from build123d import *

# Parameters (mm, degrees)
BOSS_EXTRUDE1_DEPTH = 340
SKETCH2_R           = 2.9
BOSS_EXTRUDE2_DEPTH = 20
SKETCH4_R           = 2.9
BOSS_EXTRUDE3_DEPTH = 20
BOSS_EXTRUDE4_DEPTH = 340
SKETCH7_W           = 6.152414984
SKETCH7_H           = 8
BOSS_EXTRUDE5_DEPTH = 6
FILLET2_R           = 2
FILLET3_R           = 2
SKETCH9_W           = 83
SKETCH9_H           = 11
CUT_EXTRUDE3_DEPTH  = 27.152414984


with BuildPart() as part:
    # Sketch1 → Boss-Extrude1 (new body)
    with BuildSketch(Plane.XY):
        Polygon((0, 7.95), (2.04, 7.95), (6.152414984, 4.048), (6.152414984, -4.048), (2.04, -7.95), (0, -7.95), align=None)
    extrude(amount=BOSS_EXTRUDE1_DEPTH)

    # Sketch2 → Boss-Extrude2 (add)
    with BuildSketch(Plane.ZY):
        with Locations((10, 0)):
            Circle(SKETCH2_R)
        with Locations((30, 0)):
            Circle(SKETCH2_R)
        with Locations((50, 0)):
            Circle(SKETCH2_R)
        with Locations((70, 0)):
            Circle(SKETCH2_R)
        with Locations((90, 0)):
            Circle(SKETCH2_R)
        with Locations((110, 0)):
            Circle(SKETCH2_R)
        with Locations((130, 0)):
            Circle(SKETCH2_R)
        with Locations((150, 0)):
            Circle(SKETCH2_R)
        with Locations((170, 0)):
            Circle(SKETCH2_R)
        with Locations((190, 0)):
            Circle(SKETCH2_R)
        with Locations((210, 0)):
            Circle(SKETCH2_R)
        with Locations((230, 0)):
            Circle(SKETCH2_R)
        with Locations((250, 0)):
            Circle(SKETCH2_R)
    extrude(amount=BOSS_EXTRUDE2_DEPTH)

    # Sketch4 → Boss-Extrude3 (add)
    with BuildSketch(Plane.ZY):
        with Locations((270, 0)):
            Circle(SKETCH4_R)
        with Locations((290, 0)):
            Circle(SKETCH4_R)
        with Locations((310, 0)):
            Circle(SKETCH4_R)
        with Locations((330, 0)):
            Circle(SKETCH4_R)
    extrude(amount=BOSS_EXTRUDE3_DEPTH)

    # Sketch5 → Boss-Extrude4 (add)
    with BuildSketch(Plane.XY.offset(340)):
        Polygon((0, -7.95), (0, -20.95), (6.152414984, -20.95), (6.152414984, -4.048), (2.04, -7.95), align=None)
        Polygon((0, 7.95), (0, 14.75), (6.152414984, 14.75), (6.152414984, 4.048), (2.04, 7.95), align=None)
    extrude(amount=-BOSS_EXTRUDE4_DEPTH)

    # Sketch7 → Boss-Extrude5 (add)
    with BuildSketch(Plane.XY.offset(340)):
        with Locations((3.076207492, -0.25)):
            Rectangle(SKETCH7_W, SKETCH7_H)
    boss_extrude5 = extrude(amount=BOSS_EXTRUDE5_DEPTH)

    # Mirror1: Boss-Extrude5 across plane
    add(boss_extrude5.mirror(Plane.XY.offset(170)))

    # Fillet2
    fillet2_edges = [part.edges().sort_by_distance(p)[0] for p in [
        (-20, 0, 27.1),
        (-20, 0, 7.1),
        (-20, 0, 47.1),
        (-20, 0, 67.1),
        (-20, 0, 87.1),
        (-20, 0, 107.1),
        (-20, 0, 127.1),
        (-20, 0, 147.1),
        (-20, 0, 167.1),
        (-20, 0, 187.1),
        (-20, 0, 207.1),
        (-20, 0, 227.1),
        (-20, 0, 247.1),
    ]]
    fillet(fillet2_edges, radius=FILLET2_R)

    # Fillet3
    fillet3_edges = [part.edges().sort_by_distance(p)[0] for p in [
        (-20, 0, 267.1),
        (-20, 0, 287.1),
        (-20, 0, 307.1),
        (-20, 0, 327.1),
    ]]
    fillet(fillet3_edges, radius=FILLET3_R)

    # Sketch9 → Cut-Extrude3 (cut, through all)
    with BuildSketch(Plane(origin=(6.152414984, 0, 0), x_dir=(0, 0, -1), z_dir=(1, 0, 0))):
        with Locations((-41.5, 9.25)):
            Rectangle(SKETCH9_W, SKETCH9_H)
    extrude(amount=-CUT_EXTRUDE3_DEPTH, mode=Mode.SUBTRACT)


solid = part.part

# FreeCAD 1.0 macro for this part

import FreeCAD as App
import Part
import Sketcher
from FreeCAD import Vector


def edges_at(feature, points):
    """Names of the edges that pass closest to the given points."""
    edges = feature.Shape.Edges
    near = lambda p: min(range(len(edges)), key=lambda i: edges[i].distToShape(Part.Vertex(*p))[0])
    return sorted({f"Edge{near(p) + 1}" for p in points})

doc = App.newDocument("Part")
params = doc.addObject("Spreadsheet::Sheet", "Params")
for row, (alias, value) in enumerate([
    ("sketch1_height", "15.9 mm"),
    ("sketch1_width", "2.04 mm"),
    ("pad1_length", "340 mm"),
    ("sketch2_diameter", "5.8 mm"),
    ("pad2_length", "20 mm"),
    ("sketch3_diameter", "5.8 mm"),
    ("pad3_length", "20 mm"),
    ("sketch4_height", "13 mm"),
    ("sketch4_height2", "6.8 mm"),
    ("sketch4_width", "2.04 mm"),
    ("pad4_length", "340 mm"),
    ("sketch5_height", "8 mm"),
    ("pad5_length", "6 mm"),
    ("fillet_radius", "2 mm"),
    ("fillet2_radius", "2 mm"),
    ("sketch6_width", "11 mm"),
    ("sketch6_height", "83 mm"),
], start=1):
    params.set(f"A{row}", alias)
    params.set(f"B{row}", "=" + value)
    params.setAlias(f"B{row}", alias)

body = doc.addObject("PartDesign::Body", "Body")

# Sketch on XY plane
sketch1 = doc.addObject("Sketcher::SketchObject", "Sketch")
body.addObject(sketch1)
sketch1.AttachmentSupport = (doc.XY_Plane, [""])
sketch1.MapMode = "FlatFace"
sketch1.addGeometry(Part.LineSegment(Vector(2.04, 7.95, 0), Vector(0, 7.95, 0)), False)
sketch1.addGeometry(Part.LineSegment(Vector(0, 7.95, 0), Vector(0, -7.95, 0)), False)
sketch1.addGeometry(Part.LineSegment(Vector(0, -7.95, 0), Vector(2.04, -7.95, 0)), False)
sketch1.addGeometry(Part.LineSegment(Vector(2.04, -7.95, 0), Vector(6.152415, -4.048, 0)), False)
sketch1.addGeometry(Part.LineSegment(Vector(6.152415, -4.048, 0), Vector(6.152415, 4.048, 0)), False)
sketch1.addGeometry(Part.LineSegment(Vector(6.152415, 4.048, 0), Vector(2.04, 7.95, 0)), False)
sketch1.addConstraint(Sketcher.Constraint("Coincident", 0, 2, 1, 1))
sketch1.addConstraint(Sketcher.Constraint("Coincident", 1, 2, 2, 1))
sketch1.addConstraint(Sketcher.Constraint("Coincident", 2, 2, 3, 1))
sketch1.addConstraint(Sketcher.Constraint("Coincident", 3, 2, 4, 1))
sketch1.addConstraint(Sketcher.Constraint("Coincident", 4, 2, 5, 1))
sketch1.addConstraint(Sketcher.Constraint("Coincident", 5, 2, 0, 1))
sketch1.addConstraint(Sketcher.Constraint("Horizontal", 0))
sketch1.addConstraint(Sketcher.Constraint("Vertical", 1))
sketch1.addConstraint(Sketcher.Constraint("Horizontal", 2))
sketch1.addConstraint(Sketcher.Constraint("Vertical", 4))
sketch1.addConstraint(Sketcher.Constraint("Symmetric", 0, 2, 1, 2, -1, 1))
sketch1.addConstraint(Sketcher.Constraint("Vertical", 2, 2, 5, 2))
sketch1.addConstraint(Sketcher.Constraint("Equal", 3, 5))
sketch1.addConstraint(Sketcher.Constraint("DistanceY", 1, 2, 1, 1, 15.9))
sketch1.addConstraint(Sketcher.Constraint("DistanceX", 0, 2, 0, 1, 2.04))
sketch1.addConstraint(Sketcher.Constraint("DistanceY", 4, 1, 4, 2, 8.096))
sketch1.addConstraint(Sketcher.Constraint("Distance", 3, 5.669))
sketch1.setExpression("Constraints[13]", "Params.sketch1_height")
sketch1.setExpression("Constraints[14]", "Params.sketch1_width")
pad1 = doc.addObject("PartDesign::Pad", "Pad")
body.addObject(pad1)
pad1.Profile = sketch1
pad1.setExpression("Length", "Params.pad1_length")

# Sketch on YZ plane
sketch2 = doc.addObject("Sketcher::SketchObject", "Sketch001")
body.addObject(sketch2)
sketch2.AttachmentSupport = (doc.YZ_Plane, [""])
sketch2.MapMode = "FlatFace"
sketch2.addGeometry(Part.Circle(Vector(0, 10, 0), Vector(0, 0, 1), 2.9), False)
sketch2.addGeometry(Part.Circle(Vector(0, 30, 0), Vector(0, 0, 1), 2.9), False)
sketch2.addGeometry(Part.Circle(Vector(0, 50, 0), Vector(0, 0, 1), 2.9), False)
sketch2.addGeometry(Part.Circle(Vector(0, 70, 0), Vector(0, 0, 1), 2.9), False)
sketch2.addGeometry(Part.Circle(Vector(0, 90, 0), Vector(0, 0, 1), 2.9), False)
sketch2.addGeometry(Part.Circle(Vector(0, 110, 0), Vector(0, 0, 1), 2.9), False)
sketch2.addGeometry(Part.Circle(Vector(0, 130, 0), Vector(0, 0, 1), 2.9), False)
sketch2.addGeometry(Part.Circle(Vector(0, 150, 0), Vector(0, 0, 1), 2.9), False)
sketch2.addGeometry(Part.Circle(Vector(0, 170, 0), Vector(0, 0, 1), 2.9), False)
sketch2.addGeometry(Part.Circle(Vector(0, 190, 0), Vector(0, 0, 1), 2.9), False)
sketch2.addGeometry(Part.Circle(Vector(0, 210, 0), Vector(0, 0, 1), 2.9), False)
sketch2.addGeometry(Part.Circle(Vector(0, 230, 0), Vector(0, 0, 1), 2.9), False)
sketch2.addGeometry(Part.Circle(Vector(0, 250, 0), Vector(0, 0, 1), 2.9), False)
sketch2.addConstraint(Sketcher.Constraint("Equal", 0, 1))
sketch2.addConstraint(Sketcher.Constraint("Equal", 1, 2))
sketch2.addConstraint(Sketcher.Constraint("Equal", 2, 3))
sketch2.addConstraint(Sketcher.Constraint("Equal", 3, 4))
sketch2.addConstraint(Sketcher.Constraint("Equal", 4, 5))
sketch2.addConstraint(Sketcher.Constraint("Equal", 5, 6))
sketch2.addConstraint(Sketcher.Constraint("Equal", 6, 7))
sketch2.addConstraint(Sketcher.Constraint("Equal", 7, 8))
sketch2.addConstraint(Sketcher.Constraint("Equal", 8, 9))
sketch2.addConstraint(Sketcher.Constraint("Equal", 9, 10))
sketch2.addConstraint(Sketcher.Constraint("Equal", 10, 11))
sketch2.addConstraint(Sketcher.Constraint("Equal", 11, 12))
sketch2.addConstraint(Sketcher.Constraint("PointOnObject", 0, 3, -2))
sketch2.addConstraint(Sketcher.Constraint("PointOnObject", 1, 3, -2))
sketch2.addConstraint(Sketcher.Constraint("PointOnObject", 2, 3, -2))
sketch2.addConstraint(Sketcher.Constraint("PointOnObject", 3, 3, -2))
sketch2.addConstraint(Sketcher.Constraint("PointOnObject", 4, 3, -2))
sketch2.addConstraint(Sketcher.Constraint("PointOnObject", 5, 3, -2))
sketch2.addConstraint(Sketcher.Constraint("PointOnObject", 6, 3, -2))
sketch2.addConstraint(Sketcher.Constraint("PointOnObject", 7, 3, -2))
sketch2.addConstraint(Sketcher.Constraint("PointOnObject", 8, 3, -2))
sketch2.addConstraint(Sketcher.Constraint("PointOnObject", 9, 3, -2))
sketch2.addConstraint(Sketcher.Constraint("PointOnObject", 10, 3, -2))
sketch2.addConstraint(Sketcher.Constraint("PointOnObject", 11, 3, -2))
sketch2.addConstraint(Sketcher.Constraint("PointOnObject", 12, 3, -2))
sketch2.addConstraint(Sketcher.Constraint("Diameter", 0, 5.8))
sketch2.addConstraint(Sketcher.Constraint("DistanceY", -1, 1, 0, 3, 10.0))
sketch2.addConstraint(Sketcher.Constraint("DistanceY", -1, 1, 1, 3, 30.0))
sketch2.addConstraint(Sketcher.Constraint("DistanceY", -1, 1, 2, 3, 50.0))
sketch2.addConstraint(Sketcher.Constraint("DistanceY", -1, 1, 3, 3, 70.0))
sketch2.addConstraint(Sketcher.Constraint("DistanceY", -1, 1, 4, 3, 90.0))
sketch2.addConstraint(Sketcher.Constraint("DistanceY", -1, 1, 5, 3, 110.0))
sketch2.addConstraint(Sketcher.Constraint("DistanceY", -1, 1, 6, 3, 130.0))
sketch2.addConstraint(Sketcher.Constraint("DistanceY", -1, 1, 7, 3, 150.0))
sketch2.addConstraint(Sketcher.Constraint("DistanceY", -1, 1, 8, 3, 170.0))
sketch2.addConstraint(Sketcher.Constraint("DistanceY", -1, 1, 9, 3, 190.0))
sketch2.addConstraint(Sketcher.Constraint("DistanceY", -1, 1, 10, 3, 210.0))
sketch2.addConstraint(Sketcher.Constraint("DistanceY", -1, 1, 11, 3, 230.0))
sketch2.addConstraint(Sketcher.Constraint("DistanceY", -1, 1, 12, 3, 250.0))
sketch2.setExpression("Constraints[25]", "Params.sketch2_diameter")
pad2 = doc.addObject("PartDesign::Pad", "Pad001")
body.addObject(pad2)
pad2.Profile = sketch2
pad2.setExpression("Length", "Params.pad2_length")
pad2.Reversed = True

# Sketch on YZ plane
sketch3 = doc.addObject("Sketcher::SketchObject", "Sketch002")
body.addObject(sketch3)
sketch3.AttachmentSupport = (doc.YZ_Plane, [""])
sketch3.MapMode = "FlatFace"
sketch3.addGeometry(Part.Circle(Vector(0, 270, 0), Vector(0, 0, 1), 2.9), False)
sketch3.addGeometry(Part.Circle(Vector(0, 290, 0), Vector(0, 0, 1), 2.9), False)
sketch3.addGeometry(Part.Circle(Vector(0, 310, 0), Vector(0, 0, 1), 2.9), False)
sketch3.addGeometry(Part.Circle(Vector(0, 330, 0), Vector(0, 0, 1), 2.9), False)
sketch3.addConstraint(Sketcher.Constraint("Equal", 0, 1))
sketch3.addConstraint(Sketcher.Constraint("Equal", 1, 2))
sketch3.addConstraint(Sketcher.Constraint("Equal", 2, 3))
sketch3.addConstraint(Sketcher.Constraint("PointOnObject", 0, 3, -2))
sketch3.addConstraint(Sketcher.Constraint("PointOnObject", 1, 3, -2))
sketch3.addConstraint(Sketcher.Constraint("PointOnObject", 2, 3, -2))
sketch3.addConstraint(Sketcher.Constraint("PointOnObject", 3, 3, -2))
sketch3.addConstraint(Sketcher.Constraint("Diameter", 0, 5.8))
sketch3.addConstraint(Sketcher.Constraint("DistanceY", -1, 1, 0, 3, 270.0))
sketch3.addConstraint(Sketcher.Constraint("DistanceY", -1, 1, 1, 3, 290.0))
sketch3.addConstraint(Sketcher.Constraint("DistanceY", -1, 1, 2, 3, 310.0))
sketch3.addConstraint(Sketcher.Constraint("DistanceY", -1, 1, 3, 3, 330.0))
sketch3.setExpression("Constraints[7]", "Params.sketch3_diameter")
pad3 = doc.addObject("PartDesign::Pad", "Pad002")
body.addObject(pad3)
pad3.Profile = sketch3
pad3.setExpression("Length", "Params.pad3_length")
pad3.Reversed = True

# Sketch on XY plane
sketch4 = doc.addObject("Sketcher::SketchObject", "Sketch003")
body.addObject(sketch4)
sketch4.AttachmentSupport = (doc.XY_Plane, [""])
sketch4.MapMode = "FlatFace"
sketch4.AttachmentOffset = App.Placement(Vector(0, 0, 340), App.Rotation())
sketch4.addGeometry(Part.LineSegment(Vector(0, -7.95, 0), Vector(0, -20.95, 0)), False)
sketch4.addGeometry(Part.LineSegment(Vector(0, -20.95, 0), Vector(6.152415, -20.95, 0)), False)
sketch4.addGeometry(Part.LineSegment(Vector(6.152415, -20.95, 0), Vector(6.152415, -4.048, 0)), False)
sketch4.addGeometry(Part.LineSegment(Vector(6.152415, -4.048, 0), Vector(2.04, -7.95, 0)), False)
sketch4.addGeometry(Part.LineSegment(Vector(2.04, -7.95, 0), Vector(0, -7.95, 0)), False)
sketch4.addGeometry(Part.LineSegment(Vector(0, 14.75, 0), Vector(0, 7.95, 0)), False)
sketch4.addGeometry(Part.LineSegment(Vector(0, 7.95, 0), Vector(2.04, 7.95, 0)), False)
sketch4.addGeometry(Part.LineSegment(Vector(2.04, 7.95, 0), Vector(6.152415, 4.048, 0)), False)
sketch4.addGeometry(Part.LineSegment(Vector(6.152415, 4.048, 0), Vector(6.152415, 14.75, 0)), False)
sketch4.addGeometry(Part.LineSegment(Vector(6.152415, 14.75, 0), Vector(0, 14.75, 0)), False)
sketch4.addConstraint(Sketcher.Constraint("Coincident", 0, 2, 1, 1))
sketch4.addConstraint(Sketcher.Constraint("Coincident", 1, 2, 2, 1))
sketch4.addConstraint(Sketcher.Constraint("Coincident", 2, 2, 3, 1))
sketch4.addConstraint(Sketcher.Constraint("Coincident", 3, 2, 4, 1))
sketch4.addConstraint(Sketcher.Constraint("Coincident", 4, 2, 0, 1))
sketch4.addConstraint(Sketcher.Constraint("Coincident", 5, 2, 6, 1))
sketch4.addConstraint(Sketcher.Constraint("Coincident", 6, 2, 7, 1))
sketch4.addConstraint(Sketcher.Constraint("Coincident", 7, 2, 8, 1))
sketch4.addConstraint(Sketcher.Constraint("Coincident", 8, 2, 9, 1))
sketch4.addConstraint(Sketcher.Constraint("Coincident", 9, 2, 5, 1))
sketch4.addConstraint(Sketcher.Constraint("Vertical", 0))
sketch4.addConstraint(Sketcher.Constraint("Horizontal", 1))
sketch4.addConstraint(Sketcher.Constraint("Vertical", 2))
sketch4.addConstraint(Sketcher.Constraint("Horizontal", 4))
sketch4.addConstraint(Sketcher.Constraint("Vertical", 5))
sketch4.addConstraint(Sketcher.Constraint("Horizontal", 6))
sketch4.addConstraint(Sketcher.Constraint("Vertical", 8))
sketch4.addConstraint(Sketcher.Constraint("Horizontal", 9))
sketch4.addConstraint(Sketcher.Constraint("Symmetric", 4, 2, 5, 2, -1, 1))
sketch4.addConstraint(Sketcher.Constraint("Symmetric", 2, 2, 7, 2, -1))
sketch4.addConstraint(Sketcher.Constraint("PointOnObject", 0, 2, -2))
sketch4.addConstraint(Sketcher.Constraint("Vertical", 3, 2, 6, 2))
sketch4.addConstraint(Sketcher.Constraint("DistanceY", 0, 2, 0, 1, 13.0))
sketch4.addConstraint(Sketcher.Constraint("DistanceY", 5, 2, 5, 1, 6.8))
sketch4.addConstraint(Sketcher.Constraint("DistanceX", 4, 2, 4, 1, 2.04))
sketch4.addConstraint(Sketcher.Constraint("DistanceY", 4, 2, 5, 2, 15.9))
sketch4.addConstraint(Sketcher.Constraint("DistanceY", 2, 1, 2, 2, 16.902))
sketch4.addConstraint(Sketcher.Constraint("Distance", 3, 5.669))
sketch4.setExpression("Constraints[22]", "Params.sketch4_height")
sketch4.setExpression("Constraints[23]", "Params.sketch4_height2")
sketch4.setExpression("Constraints[24]", "Params.sketch4_width")
pad4 = doc.addObject("PartDesign::Pad", "Pad003")
body.addObject(pad4)
pad4.Profile = sketch4
pad4.setExpression("Length", "Params.pad4_length")
pad4.Reversed = True

# Sketch on XY plane
sketch5 = doc.addObject("Sketcher::SketchObject", "Sketch004")
body.addObject(sketch5)
sketch5.AttachmentSupport = (doc.XY_Plane, [""])
sketch5.MapMode = "FlatFace"
sketch5.AttachmentOffset = App.Placement(Vector(0, 0, 340), App.Rotation())
sketch5.addGeometry(Part.LineSegment(Vector(0, 3.75, 0), Vector(0, -4.25, 0)), False)
sketch5.addGeometry(Part.LineSegment(Vector(0, -4.25, 0), Vector(6.152415, -4.25, 0)), False)
sketch5.addGeometry(Part.LineSegment(Vector(6.152415, -4.25, 0), Vector(6.152415, 3.75, 0)), False)
sketch5.addGeometry(Part.LineSegment(Vector(6.152415, 3.75, 0), Vector(0, 3.75, 0)), False)
sketch5.addConstraint(Sketcher.Constraint("Coincident", 0, 2, 1, 1))
sketch5.addConstraint(Sketcher.Constraint("Coincident", 1, 2, 2, 1))
sketch5.addConstraint(Sketcher.Constraint("Coincident", 2, 2, 3, 1))
sketch5.addConstraint(Sketcher.Constraint("Coincident", 3, 2, 0, 1))
sketch5.addConstraint(Sketcher.Constraint("Vertical", 0))
sketch5.addConstraint(Sketcher.Constraint("Horizontal", 1))
sketch5.addConstraint(Sketcher.Constraint("Vertical", 2))
sketch5.addConstraint(Sketcher.Constraint("Horizontal", 3))
sketch5.addConstraint(Sketcher.Constraint("PointOnObject", 0, 2, -2))
sketch5.addConstraint(Sketcher.Constraint("DistanceY", 0, 2, 0, 1, 8.0))
sketch5.addConstraint(Sketcher.Constraint("DistanceY", 0, 2, -1, 1, 4.25))
sketch5.addConstraint(Sketcher.Constraint("DistanceX", 1, 1, 1, 2, 6.152415))
sketch5.setExpression("Constraints[9]", "Params.sketch5_height")
pad5 = doc.addObject("PartDesign::Pad", "Pad004")
body.addObject(pad5)
pad5.Profile = sketch5
pad5.setExpression("Length", "Params.pad5_length")
doc.recompute()

datumplane = doc.addObject("PartDesign::Plane", "DatumPlane")
body.addObject(datumplane)
datumplane.AttachmentSupport = (doc.XY_Plane, [""])
datumplane.MapMode = "FlatFace"
datumplane.AttachmentOffset = App.Placement(Vector(0, 0, 170), App.Rotation())
mirrored = doc.addObject("PartDesign::Mirrored", "Mirrored")
body.addObject(mirrored)
mirrored.Originals = [pad5]
mirrored.MirrorPlane = (datumplane, [""])
body.Tip = mirrored
doc.recompute()

fillet = doc.addObject("PartDesign::Fillet", "Fillet")
body.addObject(fillet)
fillet.Base = (mirrored, edges_at(mirrored, [
    (-20, 0, 27.1),
    (-20, 0, 7.1),
    (-20, 0, 47.1),
    (-20, 0, 67.1),
    (-20, 0, 87.1),
    (-20, 0, 107.1),
    (-20, 0, 127.1),
    (-20, 0, 147.1),
    (-20, 0, 167.1),
    (-20, 0, 187.1),
    (-20, 0, 207.1),
    (-20, 0, 227.1),
    (-20, 0, 247.1),
]))
fillet.setExpression("Radius", "Params.fillet_radius")
doc.recompute()

fillet2 = doc.addObject("PartDesign::Fillet", "Fillet001")
body.addObject(fillet2)
fillet2.Base = (fillet, edges_at(fillet, [
    (-20, 0, 267.1),
    (-20, 0, 287.1),
    (-20, 0, 307.1),
    (-20, 0, 327.1),
]))
fillet2.setExpression("Radius", "Params.fillet2_radius")

# Sketch on YZ plane
sketch6 = doc.addObject("Sketcher::SketchObject", "Sketch005")
body.addObject(sketch6)
sketch6.AttachmentSupport = (doc.YZ_Plane, [""])
sketch6.MapMode = "FlatFace"
sketch6.AttachmentOffset = App.Placement(Vector(0, 0, 6.152415), App.Rotation())
sketch6.addGeometry(Part.LineSegment(Vector(14.75, 83, 0), Vector(3.75, 83, 0)), False)
sketch6.addGeometry(Part.LineSegment(Vector(3.75, 83, 0), Vector(3.75, 0, 0)), False)
sketch6.addGeometry(Part.LineSegment(Vector(3.75, 0, 0), Vector(14.75, 0, 0)), False)
sketch6.addGeometry(Part.LineSegment(Vector(14.75, 0, 0), Vector(14.75, 83, 0)), False)
sketch6.addConstraint(Sketcher.Constraint("Coincident", 0, 2, 1, 1))
sketch6.addConstraint(Sketcher.Constraint("Coincident", 1, 2, 2, 1))
sketch6.addConstraint(Sketcher.Constraint("Coincident", 2, 2, 3, 1))
sketch6.addConstraint(Sketcher.Constraint("Coincident", 3, 2, 0, 1))
sketch6.addConstraint(Sketcher.Constraint("Horizontal", 0))
sketch6.addConstraint(Sketcher.Constraint("Vertical", 1))
sketch6.addConstraint(Sketcher.Constraint("Horizontal", 2))
sketch6.addConstraint(Sketcher.Constraint("Vertical", 3))
sketch6.addConstraint(Sketcher.Constraint("PointOnObject", 1, 2, -1))
sketch6.addConstraint(Sketcher.Constraint("DistanceX", 0, 2, 0, 1, 11.0))
sketch6.addConstraint(Sketcher.Constraint("DistanceY", 1, 2, 1, 1, 83.0))
sketch6.addConstraint(Sketcher.Constraint("DistanceX", -1, 1, 0, 2, 3.75))
sketch6.setExpression("Constraints[9]", "Params.sketch6_width")
sketch6.setExpression("Constraints[10]", "Params.sketch6_height")
pocket1 = doc.addObject("PartDesign::Pocket", "Pocket")
body.addObject(pocket1)
pocket1.Profile = sketch6
pocket1.Type = "ThroughAll"

doc.recompute()
